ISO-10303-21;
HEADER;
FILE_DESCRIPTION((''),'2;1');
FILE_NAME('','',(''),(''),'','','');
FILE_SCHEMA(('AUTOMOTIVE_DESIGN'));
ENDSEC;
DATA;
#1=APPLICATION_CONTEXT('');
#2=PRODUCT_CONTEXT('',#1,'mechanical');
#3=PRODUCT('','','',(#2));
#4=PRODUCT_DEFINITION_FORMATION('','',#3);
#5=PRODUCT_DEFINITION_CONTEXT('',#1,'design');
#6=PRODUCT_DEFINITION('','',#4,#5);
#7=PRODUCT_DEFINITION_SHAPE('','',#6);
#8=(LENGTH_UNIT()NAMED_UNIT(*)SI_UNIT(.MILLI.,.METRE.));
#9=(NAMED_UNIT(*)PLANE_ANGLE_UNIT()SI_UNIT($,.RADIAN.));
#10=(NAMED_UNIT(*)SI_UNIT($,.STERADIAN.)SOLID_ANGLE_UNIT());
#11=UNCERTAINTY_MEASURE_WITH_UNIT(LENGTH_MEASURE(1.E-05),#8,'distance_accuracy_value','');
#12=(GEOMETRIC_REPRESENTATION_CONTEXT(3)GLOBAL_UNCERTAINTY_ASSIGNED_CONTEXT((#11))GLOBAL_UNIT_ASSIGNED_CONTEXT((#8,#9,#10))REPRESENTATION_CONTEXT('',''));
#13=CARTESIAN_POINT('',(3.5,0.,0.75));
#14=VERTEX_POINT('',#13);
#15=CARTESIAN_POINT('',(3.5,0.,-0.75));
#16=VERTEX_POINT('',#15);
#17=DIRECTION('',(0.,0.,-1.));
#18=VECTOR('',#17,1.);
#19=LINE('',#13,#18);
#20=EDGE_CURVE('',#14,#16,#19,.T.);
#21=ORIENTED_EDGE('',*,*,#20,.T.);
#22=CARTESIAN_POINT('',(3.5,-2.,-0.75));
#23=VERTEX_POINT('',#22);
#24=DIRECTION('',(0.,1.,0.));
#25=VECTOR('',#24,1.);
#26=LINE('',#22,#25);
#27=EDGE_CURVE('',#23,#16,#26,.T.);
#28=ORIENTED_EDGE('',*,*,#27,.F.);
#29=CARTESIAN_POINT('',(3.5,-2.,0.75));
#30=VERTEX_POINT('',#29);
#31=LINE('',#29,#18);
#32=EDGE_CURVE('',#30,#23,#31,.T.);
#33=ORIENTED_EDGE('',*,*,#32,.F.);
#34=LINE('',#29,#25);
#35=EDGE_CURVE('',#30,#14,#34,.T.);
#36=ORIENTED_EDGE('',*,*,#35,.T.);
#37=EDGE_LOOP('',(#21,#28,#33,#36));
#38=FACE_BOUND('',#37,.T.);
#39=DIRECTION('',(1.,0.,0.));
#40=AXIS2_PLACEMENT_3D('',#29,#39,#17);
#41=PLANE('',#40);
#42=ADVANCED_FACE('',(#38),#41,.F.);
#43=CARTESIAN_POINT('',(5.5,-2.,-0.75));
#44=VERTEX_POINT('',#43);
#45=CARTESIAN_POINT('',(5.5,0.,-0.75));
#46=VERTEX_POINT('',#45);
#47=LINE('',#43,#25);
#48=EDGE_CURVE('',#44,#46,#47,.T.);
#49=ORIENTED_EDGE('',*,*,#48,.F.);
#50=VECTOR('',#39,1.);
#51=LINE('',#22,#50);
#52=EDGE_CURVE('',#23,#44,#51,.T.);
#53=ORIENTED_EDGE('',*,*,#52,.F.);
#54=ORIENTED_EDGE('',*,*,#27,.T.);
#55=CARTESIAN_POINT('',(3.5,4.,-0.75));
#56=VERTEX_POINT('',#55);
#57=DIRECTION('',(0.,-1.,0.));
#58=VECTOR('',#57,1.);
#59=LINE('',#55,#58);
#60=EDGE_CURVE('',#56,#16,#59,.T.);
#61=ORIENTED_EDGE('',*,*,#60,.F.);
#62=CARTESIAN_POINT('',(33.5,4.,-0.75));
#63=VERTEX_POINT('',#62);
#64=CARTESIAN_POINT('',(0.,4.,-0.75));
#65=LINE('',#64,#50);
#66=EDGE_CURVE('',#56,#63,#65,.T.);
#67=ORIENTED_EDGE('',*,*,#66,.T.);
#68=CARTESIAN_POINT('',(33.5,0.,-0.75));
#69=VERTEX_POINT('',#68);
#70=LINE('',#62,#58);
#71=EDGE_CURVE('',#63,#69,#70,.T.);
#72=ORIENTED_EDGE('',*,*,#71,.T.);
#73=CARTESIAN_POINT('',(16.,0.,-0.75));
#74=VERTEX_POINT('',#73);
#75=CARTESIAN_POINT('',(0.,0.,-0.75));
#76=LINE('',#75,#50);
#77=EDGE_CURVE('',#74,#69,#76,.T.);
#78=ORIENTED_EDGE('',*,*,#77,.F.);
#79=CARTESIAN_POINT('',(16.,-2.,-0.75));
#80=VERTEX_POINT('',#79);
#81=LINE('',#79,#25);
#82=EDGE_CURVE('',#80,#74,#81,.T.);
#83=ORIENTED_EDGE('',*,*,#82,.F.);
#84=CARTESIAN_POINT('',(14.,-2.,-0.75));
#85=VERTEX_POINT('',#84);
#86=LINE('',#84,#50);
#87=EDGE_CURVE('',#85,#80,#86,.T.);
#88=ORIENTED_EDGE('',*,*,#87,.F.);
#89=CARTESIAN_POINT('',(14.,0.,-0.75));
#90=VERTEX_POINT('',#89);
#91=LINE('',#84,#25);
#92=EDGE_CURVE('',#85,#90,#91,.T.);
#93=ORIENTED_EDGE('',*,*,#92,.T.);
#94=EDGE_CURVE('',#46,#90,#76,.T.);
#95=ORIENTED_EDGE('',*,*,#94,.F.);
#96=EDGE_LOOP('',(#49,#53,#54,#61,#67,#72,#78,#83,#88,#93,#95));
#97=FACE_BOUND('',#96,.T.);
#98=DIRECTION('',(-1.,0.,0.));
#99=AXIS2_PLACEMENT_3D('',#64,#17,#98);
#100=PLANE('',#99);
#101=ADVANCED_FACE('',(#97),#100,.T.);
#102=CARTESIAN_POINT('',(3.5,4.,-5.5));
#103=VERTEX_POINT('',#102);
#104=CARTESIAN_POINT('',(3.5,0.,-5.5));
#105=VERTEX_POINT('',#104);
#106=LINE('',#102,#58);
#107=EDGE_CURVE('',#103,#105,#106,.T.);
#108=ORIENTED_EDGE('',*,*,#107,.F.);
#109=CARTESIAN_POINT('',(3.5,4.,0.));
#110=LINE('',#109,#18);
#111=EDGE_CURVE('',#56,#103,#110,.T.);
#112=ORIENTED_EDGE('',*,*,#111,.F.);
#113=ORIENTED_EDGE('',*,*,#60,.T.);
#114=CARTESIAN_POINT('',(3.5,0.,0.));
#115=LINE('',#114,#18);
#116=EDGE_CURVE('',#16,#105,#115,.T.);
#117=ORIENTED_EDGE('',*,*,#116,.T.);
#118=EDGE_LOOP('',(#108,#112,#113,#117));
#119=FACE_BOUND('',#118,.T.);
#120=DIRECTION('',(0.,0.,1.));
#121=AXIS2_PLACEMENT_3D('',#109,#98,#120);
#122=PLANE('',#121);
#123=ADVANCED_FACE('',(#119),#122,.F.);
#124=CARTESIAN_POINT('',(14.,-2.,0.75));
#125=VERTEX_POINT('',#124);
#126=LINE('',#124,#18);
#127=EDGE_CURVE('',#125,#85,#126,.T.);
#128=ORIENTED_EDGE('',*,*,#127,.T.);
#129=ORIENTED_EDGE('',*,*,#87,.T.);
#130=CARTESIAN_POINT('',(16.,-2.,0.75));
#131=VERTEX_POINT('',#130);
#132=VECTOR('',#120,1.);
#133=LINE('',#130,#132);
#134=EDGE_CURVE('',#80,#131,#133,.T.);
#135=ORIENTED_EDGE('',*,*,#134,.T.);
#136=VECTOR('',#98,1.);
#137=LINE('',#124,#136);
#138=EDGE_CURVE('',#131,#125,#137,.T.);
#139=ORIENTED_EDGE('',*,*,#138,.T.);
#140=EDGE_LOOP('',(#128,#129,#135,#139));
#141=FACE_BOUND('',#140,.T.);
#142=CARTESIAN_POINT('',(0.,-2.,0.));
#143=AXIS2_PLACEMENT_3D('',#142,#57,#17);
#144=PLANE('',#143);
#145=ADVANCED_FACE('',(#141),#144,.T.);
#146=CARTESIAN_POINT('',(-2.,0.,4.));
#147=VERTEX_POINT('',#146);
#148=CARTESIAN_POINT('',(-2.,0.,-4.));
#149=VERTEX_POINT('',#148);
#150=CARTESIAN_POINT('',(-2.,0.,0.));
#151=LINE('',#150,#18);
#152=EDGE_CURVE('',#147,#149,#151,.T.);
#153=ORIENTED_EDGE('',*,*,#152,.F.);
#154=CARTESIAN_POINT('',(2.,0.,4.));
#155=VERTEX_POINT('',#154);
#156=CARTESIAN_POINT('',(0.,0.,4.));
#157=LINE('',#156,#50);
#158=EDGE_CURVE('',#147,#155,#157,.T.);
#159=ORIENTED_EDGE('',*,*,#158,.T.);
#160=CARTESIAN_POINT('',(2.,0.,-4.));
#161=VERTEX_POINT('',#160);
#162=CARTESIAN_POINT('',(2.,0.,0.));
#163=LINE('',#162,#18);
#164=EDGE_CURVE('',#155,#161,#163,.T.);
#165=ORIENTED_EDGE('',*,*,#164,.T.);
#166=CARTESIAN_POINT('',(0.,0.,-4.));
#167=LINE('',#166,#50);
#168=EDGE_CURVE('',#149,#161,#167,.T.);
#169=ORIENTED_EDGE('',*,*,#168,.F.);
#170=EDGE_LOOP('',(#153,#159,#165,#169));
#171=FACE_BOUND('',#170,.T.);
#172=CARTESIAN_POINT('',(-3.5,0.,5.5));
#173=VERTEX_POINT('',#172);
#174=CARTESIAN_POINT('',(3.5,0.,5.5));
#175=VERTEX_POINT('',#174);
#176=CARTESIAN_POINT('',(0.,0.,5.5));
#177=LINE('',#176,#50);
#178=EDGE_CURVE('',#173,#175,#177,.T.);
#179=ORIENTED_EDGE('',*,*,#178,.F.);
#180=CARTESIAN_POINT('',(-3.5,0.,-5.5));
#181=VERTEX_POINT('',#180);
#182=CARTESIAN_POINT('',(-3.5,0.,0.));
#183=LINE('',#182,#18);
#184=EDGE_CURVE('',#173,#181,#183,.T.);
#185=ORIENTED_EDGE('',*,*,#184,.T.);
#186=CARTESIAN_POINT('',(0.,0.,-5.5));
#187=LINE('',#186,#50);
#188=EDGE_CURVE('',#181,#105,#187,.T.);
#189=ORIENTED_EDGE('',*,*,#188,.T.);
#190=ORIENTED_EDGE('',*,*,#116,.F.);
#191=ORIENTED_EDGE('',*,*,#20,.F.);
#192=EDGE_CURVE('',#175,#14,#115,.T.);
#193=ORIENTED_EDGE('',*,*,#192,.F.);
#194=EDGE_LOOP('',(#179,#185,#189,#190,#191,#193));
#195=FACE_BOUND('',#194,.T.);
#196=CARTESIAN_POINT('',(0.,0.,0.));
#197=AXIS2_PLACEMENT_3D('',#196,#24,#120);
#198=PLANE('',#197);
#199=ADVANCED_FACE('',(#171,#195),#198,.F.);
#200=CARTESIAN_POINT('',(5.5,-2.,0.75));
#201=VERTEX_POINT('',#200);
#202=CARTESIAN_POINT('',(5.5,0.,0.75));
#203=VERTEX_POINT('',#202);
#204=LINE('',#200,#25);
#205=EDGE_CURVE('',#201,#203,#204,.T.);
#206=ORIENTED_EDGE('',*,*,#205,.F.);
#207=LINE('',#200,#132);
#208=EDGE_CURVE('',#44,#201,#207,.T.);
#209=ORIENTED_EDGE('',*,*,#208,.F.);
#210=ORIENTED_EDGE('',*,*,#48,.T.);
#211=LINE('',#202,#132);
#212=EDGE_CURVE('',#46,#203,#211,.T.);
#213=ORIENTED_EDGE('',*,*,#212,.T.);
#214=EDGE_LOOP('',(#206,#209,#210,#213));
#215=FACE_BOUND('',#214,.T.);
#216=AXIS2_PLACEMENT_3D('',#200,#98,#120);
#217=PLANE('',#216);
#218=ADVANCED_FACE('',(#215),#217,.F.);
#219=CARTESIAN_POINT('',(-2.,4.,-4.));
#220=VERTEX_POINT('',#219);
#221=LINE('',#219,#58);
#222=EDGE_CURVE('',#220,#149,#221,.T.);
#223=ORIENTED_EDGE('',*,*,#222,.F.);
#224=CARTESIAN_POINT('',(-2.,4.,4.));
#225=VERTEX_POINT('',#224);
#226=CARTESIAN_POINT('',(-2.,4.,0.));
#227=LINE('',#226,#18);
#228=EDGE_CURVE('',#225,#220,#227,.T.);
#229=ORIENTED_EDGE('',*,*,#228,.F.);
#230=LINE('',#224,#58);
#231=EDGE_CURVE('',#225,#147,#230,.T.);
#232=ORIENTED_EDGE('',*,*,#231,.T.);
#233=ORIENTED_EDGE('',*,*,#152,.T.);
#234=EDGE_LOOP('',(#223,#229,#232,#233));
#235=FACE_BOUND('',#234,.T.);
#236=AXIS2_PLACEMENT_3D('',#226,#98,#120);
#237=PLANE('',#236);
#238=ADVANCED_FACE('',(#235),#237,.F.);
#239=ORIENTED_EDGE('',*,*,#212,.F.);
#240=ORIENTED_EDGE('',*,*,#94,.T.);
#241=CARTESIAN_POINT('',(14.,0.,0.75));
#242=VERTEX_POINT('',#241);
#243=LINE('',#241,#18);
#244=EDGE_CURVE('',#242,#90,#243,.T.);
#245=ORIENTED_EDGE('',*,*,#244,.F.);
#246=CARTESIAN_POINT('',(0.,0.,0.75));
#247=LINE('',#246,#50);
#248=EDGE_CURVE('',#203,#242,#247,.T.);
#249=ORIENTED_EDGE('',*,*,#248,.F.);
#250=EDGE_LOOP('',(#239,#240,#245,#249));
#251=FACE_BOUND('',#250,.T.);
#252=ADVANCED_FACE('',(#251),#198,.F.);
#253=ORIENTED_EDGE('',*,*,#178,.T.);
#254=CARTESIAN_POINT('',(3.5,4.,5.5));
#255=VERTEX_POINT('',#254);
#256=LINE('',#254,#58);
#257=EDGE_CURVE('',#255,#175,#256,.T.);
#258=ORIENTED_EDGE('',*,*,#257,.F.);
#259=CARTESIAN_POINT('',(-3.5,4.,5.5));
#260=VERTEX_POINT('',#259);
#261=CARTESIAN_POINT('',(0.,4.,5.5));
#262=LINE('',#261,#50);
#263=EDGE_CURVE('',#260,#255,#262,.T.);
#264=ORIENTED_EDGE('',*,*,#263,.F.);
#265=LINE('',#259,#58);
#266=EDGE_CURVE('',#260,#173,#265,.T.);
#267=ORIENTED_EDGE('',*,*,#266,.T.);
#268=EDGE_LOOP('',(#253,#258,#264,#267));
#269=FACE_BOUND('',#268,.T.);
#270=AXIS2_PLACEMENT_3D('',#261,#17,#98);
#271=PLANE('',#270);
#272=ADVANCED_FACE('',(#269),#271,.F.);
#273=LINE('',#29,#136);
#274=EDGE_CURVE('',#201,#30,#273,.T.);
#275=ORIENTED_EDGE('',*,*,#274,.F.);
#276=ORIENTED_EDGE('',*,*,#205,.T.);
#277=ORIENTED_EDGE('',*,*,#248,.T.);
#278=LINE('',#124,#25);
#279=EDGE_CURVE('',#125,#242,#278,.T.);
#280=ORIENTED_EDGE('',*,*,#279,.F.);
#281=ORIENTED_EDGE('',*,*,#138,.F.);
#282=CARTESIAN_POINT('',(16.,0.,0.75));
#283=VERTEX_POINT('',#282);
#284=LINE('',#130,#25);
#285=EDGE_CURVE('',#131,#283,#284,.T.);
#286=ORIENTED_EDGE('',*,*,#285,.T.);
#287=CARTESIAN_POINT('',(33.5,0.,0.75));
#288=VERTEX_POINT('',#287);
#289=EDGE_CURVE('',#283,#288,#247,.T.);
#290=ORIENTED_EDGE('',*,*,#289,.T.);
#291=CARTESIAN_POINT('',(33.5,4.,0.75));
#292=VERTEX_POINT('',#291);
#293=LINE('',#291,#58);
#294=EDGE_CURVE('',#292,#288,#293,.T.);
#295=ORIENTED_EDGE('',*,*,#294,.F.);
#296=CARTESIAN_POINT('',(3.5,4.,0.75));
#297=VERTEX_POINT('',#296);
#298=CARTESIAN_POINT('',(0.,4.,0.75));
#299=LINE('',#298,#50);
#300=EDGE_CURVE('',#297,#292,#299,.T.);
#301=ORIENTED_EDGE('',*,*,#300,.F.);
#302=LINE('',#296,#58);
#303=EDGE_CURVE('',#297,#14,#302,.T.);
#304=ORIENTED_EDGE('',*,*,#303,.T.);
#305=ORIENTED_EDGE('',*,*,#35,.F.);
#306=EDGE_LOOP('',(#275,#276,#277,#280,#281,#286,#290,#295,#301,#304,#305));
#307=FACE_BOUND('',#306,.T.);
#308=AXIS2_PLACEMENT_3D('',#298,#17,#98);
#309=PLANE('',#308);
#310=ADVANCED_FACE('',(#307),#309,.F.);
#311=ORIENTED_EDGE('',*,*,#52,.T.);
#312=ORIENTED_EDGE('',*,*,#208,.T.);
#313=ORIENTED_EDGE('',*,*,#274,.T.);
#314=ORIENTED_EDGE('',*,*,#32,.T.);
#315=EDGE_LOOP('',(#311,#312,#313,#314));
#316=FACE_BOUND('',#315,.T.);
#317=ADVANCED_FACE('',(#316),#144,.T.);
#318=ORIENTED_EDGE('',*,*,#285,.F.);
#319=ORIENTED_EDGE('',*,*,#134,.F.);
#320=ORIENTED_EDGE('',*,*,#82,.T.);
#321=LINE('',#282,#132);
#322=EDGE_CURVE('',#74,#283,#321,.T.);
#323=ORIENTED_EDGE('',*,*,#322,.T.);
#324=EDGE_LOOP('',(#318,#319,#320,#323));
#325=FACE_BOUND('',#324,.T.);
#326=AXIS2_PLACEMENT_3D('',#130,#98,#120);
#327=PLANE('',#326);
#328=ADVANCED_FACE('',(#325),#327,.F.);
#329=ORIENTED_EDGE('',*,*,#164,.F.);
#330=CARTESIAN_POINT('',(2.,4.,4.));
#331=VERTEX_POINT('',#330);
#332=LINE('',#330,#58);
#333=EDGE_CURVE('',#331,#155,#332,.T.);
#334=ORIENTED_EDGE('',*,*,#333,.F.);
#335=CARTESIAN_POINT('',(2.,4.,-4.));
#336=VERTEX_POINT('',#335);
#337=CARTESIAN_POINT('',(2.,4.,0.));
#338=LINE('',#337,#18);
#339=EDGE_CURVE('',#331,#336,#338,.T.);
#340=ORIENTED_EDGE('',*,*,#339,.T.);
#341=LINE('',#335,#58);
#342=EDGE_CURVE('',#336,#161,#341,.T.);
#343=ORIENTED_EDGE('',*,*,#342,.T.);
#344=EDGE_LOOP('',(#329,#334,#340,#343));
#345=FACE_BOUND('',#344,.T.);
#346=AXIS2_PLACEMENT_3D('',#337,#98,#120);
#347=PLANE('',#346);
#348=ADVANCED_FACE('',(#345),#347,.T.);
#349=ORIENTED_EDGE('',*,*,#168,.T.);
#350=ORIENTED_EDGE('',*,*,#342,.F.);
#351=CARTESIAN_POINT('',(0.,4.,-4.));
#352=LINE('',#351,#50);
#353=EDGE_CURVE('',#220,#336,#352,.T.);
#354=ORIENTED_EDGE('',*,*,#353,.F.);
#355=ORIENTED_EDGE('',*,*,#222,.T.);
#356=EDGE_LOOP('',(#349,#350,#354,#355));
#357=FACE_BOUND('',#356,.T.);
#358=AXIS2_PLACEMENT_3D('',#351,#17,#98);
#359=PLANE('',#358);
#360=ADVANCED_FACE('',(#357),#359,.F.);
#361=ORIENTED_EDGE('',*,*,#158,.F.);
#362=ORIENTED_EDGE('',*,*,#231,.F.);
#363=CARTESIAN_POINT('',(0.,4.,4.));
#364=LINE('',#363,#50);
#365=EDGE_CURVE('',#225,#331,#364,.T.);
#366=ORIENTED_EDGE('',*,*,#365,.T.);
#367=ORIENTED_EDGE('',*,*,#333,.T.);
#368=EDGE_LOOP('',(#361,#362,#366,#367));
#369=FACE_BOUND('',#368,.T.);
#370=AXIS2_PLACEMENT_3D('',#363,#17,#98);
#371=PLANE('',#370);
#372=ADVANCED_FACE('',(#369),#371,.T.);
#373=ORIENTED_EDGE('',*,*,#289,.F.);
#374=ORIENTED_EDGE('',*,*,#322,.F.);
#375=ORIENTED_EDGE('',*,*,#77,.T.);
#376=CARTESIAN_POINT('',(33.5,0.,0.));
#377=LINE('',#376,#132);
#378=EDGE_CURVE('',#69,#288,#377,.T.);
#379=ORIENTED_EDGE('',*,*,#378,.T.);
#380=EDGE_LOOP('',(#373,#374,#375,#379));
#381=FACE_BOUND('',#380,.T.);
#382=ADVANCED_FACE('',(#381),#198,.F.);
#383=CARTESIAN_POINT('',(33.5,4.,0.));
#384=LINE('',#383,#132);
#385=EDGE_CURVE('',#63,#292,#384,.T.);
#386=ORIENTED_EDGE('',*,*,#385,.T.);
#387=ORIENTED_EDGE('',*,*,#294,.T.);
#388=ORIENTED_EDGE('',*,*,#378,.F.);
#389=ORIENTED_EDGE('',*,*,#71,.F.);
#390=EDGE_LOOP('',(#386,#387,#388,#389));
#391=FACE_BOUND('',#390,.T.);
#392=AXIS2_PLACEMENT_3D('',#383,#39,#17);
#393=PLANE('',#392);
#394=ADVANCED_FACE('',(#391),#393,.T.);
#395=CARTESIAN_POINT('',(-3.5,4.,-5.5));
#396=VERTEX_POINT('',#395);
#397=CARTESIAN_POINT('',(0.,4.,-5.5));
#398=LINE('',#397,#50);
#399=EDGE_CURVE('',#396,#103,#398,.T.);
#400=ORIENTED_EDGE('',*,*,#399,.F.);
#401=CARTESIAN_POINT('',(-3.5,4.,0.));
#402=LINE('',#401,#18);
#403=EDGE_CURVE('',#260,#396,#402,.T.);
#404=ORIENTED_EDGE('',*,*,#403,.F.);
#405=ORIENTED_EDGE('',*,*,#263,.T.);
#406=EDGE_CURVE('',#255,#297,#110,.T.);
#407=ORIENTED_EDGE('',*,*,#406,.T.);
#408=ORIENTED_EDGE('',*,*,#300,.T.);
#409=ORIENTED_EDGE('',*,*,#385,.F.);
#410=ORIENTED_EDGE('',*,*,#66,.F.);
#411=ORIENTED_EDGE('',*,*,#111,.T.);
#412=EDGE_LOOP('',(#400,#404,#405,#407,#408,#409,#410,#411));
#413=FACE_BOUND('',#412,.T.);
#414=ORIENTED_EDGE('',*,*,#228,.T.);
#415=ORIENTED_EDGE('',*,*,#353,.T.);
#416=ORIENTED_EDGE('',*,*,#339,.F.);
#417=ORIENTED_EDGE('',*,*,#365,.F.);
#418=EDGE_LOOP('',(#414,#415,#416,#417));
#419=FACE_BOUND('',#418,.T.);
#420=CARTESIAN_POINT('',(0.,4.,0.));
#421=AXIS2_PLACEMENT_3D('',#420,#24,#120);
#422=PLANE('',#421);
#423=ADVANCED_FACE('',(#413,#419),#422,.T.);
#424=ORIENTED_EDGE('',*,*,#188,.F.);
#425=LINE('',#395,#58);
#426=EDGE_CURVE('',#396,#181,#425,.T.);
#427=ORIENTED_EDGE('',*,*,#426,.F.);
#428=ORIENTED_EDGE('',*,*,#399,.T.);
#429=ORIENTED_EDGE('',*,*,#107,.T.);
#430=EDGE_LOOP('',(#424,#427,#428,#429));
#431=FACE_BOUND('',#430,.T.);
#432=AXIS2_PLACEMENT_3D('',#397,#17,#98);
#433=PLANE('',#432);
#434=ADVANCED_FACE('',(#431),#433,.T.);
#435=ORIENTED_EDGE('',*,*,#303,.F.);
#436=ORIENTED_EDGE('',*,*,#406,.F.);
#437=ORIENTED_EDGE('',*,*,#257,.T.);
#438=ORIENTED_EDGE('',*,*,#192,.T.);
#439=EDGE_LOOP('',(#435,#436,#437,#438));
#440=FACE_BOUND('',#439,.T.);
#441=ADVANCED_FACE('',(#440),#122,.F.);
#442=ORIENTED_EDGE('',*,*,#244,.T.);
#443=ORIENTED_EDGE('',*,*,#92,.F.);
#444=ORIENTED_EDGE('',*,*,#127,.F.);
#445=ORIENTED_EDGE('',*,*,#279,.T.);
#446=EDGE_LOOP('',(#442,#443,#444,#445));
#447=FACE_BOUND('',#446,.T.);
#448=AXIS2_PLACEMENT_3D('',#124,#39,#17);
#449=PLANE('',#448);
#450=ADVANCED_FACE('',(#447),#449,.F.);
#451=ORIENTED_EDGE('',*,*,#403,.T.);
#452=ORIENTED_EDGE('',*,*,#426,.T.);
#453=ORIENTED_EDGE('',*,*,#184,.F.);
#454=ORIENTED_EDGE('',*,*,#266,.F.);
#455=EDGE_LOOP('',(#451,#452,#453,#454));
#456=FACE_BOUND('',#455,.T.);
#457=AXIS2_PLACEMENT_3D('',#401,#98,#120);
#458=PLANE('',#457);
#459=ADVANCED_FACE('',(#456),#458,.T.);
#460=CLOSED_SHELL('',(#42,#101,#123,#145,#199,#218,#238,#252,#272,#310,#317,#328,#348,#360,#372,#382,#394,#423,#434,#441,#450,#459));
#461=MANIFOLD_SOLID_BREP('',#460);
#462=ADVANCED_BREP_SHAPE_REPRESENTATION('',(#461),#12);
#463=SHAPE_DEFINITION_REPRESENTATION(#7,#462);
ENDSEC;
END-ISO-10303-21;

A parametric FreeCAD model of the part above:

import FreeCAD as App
import Part
import Sketcher

V = App.Vector
Q = App.Units.Quantity

doc = App.newDocument("Part")
body = doc.addObject("PartDesign::Body", "Body")

# Sketch on XZ plane
sketch1 = body.newObject("Sketcher::SketchObject", "Sketch")
sketch1.AttachmentSupport = (doc.getObject("XZ_Plane"), [""])
sketch1.MapMode = "FlatFace"
sketch1.addGeometry([
    Part.LineSegment(V(3.5, 0.75, 0), V(33.5, 0.75, 0)),  # 0
    Part.LineSegment(V(33.5, 0.75, 0), V(33.5, -0.75, 0)),  # 1
    Part.LineSegment(V(33.5, -0.75, 0), V(3.5, -0.75, 0)),  # 2
    Part.LineSegment(V(3.5, -0.75, 0), V(3.5, -5.5, 0)),  # 3
    Part.LineSegment(V(3.5, -5.5, 0), V(-3.5, -5.5, 0)),  # 4
    Part.LineSegment(V(-3.5, -5.5, 0), V(-3.5, 5.5, 0)),  # 5
    Part.LineSegment(V(-3.5, 5.5, 0), V(3.5, 5.5, 0)),  # 6
    Part.LineSegment(V(3.5, 5.5, 0), V(3.5, 0.75, 0)),  # 7
    Part.LineSegment(V(-2, 4, 0), V(-2, -4, 0)),  # 8
    Part.LineSegment(V(-2, -4, 0), V(2, -4, 0)),  # 9
    Part.LineSegment(V(2, -4, 0), V(2, 4, 0)),  # 10
    Part.LineSegment(V(2, 4, 0), V(-2, 4, 0)),  # 11
], False)
sketch1.addConstraint([
    Sketcher.Constraint("Coincident", 0, 2, 1, 1),
    Sketcher.Constraint("Coincident", 1, 2, 2, 1),
    Sketcher.Constraint("Coincident", 2, 2, 3, 1),
    Sketcher.Constraint("Coincident", 3, 2, 4, 1),
    Sketcher.Constraint("Coincident", 4, 2, 5, 1),
    Sketcher.Constraint("Coincident", 5, 2, 6, 1),
    Sketcher.Constraint("Coincident", 6, 2, 7, 1),
    Sketcher.Constraint("Coincident", 7, 2, 0, 1),
    Sketcher.Constraint("Coincident", 8, 2, 9, 1),
    Sketcher.Constraint("Coincident", 9, 2, 10, 1),
    Sketcher.Constraint("Coincident", 10, 2, 11, 1),
    Sketcher.Constraint("Coincident", 11, 2, 8, 1),
    Sketcher.Constraint("Horizontal", 0),
    Sketcher.Constraint("Vertical", 1),
    Sketcher.Constraint("Horizontal", 2),
    Sketcher.Constraint("Vertical", 3),
    Sketcher.Constraint("Horizontal", 4),
    Sketcher.Constraint("Vertical", 5),
    Sketcher.Constraint("Horizontal", 6),
    Sketcher.Constraint("Vertical", 7),
    Sketcher.Constraint("Vertical", 8),
    Sketcher.Constraint("Horizontal", 9),
    Sketcher.Constraint("Vertical", 10),
    Sketcher.Constraint("Horizontal", 11),
    Sketcher.Constraint("Symmetric", 3, 2, 5, 2, -1, 1),
    Sketcher.Constraint("Symmetric", 8, 2, 10, 2, -1, 1),
    Sketcher.Constraint("Symmetric", 2, 2, 7, 2, -1),
    Sketcher.Constraint("DistanceX", 0, 1, 0, 2, Q("30 mm")),
    Sketcher.Constraint("DistanceX", 4, 2, 4, 1, Q("7 mm")),
    Sketcher.Constraint("DistanceX", 9, 1, 9, 2, Q("4 mm")),
    Sketcher.Constraint("DistanceY", 5, 1, 5, 2, Q("11 mm")),
    Sketcher.Constraint("DistanceY", 8, 2, 8, 1, Q("8 mm")),
    Sketcher.Constraint("DistanceY", 1, 2, 1, 1, Q("1.5 mm")),
])
pad1 = body.newObject("PartDesign::Pad", "Pad")
pad1.Profile = sketch1
pad1.Length = 4
pad1.Reversed = True

# Sketch on XZ plane
sketch2 = body.newObject("Sketcher::SketchObject", "Sketch001")
sketch2.AttachmentSupport = (doc.getObject("XZ_Plane"), [""])
sketch2.MapMode = "FlatFace"
sketch2.addGeometry([
    Part.LineSegment(V(14, 0.75, 0), V(14, -0.75, 0)),
    Part.LineSegment(V(14, -0.75, 0), V(16, -0.75, 0)),
    Part.LineSegment(V(16, -0.75, 0), V(16, 0.75, 0)),
    Part.LineSegment(V(16, 0.75, 0), V(14, 0.75, 0)),
], False)
sketch2.addConstraint([
    Sketcher.Constraint("Coincident", 0, 2, 1, 1),
    Sketcher.Constraint("Coincident", 1, 2, 2, 1),
    Sketcher.Constraint("Coincident", 2, 2, 3, 1),
    Sketcher.Constraint("Coincident", 3, 2, 0, 1),
    Sketcher.Constraint("Vertical", 0),
    Sketcher.Constraint("Horizontal", 1),
    Sketcher.Constraint("Vertical", 2),
    Sketcher.Constraint("Horizontal", 3),
    Sketcher.Constraint("DistanceX", 1, 1, 1, 2, Q("2 mm")),
    Sketcher.Constraint("DistanceY", 0, 2, 0, 1, Q("1.5 mm")),
    Sketcher.Constraint("DistanceX", -1, 1, 0, 2, Q("14 mm")),
    Sketcher.Constraint("DistanceY", 0, 2, -1, 1, Q("0.75 mm")),
])
pad2 = body.newObject("PartDesign::Pad", "Pad001")
pad2.Profile = sketch2
pad2.Length = 2

# Sketch on XZ plane
sketch3 = body.newObject("Sketcher::SketchObject", "Sketch002")
sketch3.AttachmentSupport = (doc.getObject("XZ_Plane"), [""])
sketch3.MapMode = "FlatFace"
sketch3.addGeometry([
    Part.LineSegment(V(5.5, -0.75, 0), V(5.5, 0.75, 0)),
    Part.LineSegment(V(5.5, 0.75, 0), V(3.5, 0.75, 0)),
    Part.LineSegment(V(3.5, 0.75, 0), V(3.5, -0.75, 0)),
    Part.LineSegment(V(3.5, -0.75, 0), V(5.5, -0.75, 0)),
], False)
sketch3.addConstraint([
    Sketcher.Constraint("Coincident", 0, 2, 1, 1),
    Sketcher.Constraint("Coincident", 1, 2, 2, 1),
    Sketcher.Constraint("Coincident", 2, 2, 3, 1),
    Sketcher.Constraint("Coincident", 3, 2, 0, 1),
    Sketcher.Constraint("Vertical", 0),
    Sketcher.Constraint("Horizontal", 1),
    Sketcher.Constraint("Vertical", 2),
    Sketcher.Constraint("Horizontal", 3),
    Sketcher.Constraint("DistanceX", 1, 2, 1, 1, Q("2 mm")),
    Sketcher.Constraint("DistanceY", 0, 1, 0, 2, Q("1.5 mm")),
    Sketcher.Constraint("DistanceX", -1, 1, 0, 2, Q("5.5 mm")),
    Sketcher.Constraint("DistanceY", -1, 1, 0, 2, Q("0.75 mm")),
])
pad3 = body.newObject("PartDesign::Pad", "Pad002")
pad3.Profile = sketch3
pad3.Length = 2

doc.recompute()
